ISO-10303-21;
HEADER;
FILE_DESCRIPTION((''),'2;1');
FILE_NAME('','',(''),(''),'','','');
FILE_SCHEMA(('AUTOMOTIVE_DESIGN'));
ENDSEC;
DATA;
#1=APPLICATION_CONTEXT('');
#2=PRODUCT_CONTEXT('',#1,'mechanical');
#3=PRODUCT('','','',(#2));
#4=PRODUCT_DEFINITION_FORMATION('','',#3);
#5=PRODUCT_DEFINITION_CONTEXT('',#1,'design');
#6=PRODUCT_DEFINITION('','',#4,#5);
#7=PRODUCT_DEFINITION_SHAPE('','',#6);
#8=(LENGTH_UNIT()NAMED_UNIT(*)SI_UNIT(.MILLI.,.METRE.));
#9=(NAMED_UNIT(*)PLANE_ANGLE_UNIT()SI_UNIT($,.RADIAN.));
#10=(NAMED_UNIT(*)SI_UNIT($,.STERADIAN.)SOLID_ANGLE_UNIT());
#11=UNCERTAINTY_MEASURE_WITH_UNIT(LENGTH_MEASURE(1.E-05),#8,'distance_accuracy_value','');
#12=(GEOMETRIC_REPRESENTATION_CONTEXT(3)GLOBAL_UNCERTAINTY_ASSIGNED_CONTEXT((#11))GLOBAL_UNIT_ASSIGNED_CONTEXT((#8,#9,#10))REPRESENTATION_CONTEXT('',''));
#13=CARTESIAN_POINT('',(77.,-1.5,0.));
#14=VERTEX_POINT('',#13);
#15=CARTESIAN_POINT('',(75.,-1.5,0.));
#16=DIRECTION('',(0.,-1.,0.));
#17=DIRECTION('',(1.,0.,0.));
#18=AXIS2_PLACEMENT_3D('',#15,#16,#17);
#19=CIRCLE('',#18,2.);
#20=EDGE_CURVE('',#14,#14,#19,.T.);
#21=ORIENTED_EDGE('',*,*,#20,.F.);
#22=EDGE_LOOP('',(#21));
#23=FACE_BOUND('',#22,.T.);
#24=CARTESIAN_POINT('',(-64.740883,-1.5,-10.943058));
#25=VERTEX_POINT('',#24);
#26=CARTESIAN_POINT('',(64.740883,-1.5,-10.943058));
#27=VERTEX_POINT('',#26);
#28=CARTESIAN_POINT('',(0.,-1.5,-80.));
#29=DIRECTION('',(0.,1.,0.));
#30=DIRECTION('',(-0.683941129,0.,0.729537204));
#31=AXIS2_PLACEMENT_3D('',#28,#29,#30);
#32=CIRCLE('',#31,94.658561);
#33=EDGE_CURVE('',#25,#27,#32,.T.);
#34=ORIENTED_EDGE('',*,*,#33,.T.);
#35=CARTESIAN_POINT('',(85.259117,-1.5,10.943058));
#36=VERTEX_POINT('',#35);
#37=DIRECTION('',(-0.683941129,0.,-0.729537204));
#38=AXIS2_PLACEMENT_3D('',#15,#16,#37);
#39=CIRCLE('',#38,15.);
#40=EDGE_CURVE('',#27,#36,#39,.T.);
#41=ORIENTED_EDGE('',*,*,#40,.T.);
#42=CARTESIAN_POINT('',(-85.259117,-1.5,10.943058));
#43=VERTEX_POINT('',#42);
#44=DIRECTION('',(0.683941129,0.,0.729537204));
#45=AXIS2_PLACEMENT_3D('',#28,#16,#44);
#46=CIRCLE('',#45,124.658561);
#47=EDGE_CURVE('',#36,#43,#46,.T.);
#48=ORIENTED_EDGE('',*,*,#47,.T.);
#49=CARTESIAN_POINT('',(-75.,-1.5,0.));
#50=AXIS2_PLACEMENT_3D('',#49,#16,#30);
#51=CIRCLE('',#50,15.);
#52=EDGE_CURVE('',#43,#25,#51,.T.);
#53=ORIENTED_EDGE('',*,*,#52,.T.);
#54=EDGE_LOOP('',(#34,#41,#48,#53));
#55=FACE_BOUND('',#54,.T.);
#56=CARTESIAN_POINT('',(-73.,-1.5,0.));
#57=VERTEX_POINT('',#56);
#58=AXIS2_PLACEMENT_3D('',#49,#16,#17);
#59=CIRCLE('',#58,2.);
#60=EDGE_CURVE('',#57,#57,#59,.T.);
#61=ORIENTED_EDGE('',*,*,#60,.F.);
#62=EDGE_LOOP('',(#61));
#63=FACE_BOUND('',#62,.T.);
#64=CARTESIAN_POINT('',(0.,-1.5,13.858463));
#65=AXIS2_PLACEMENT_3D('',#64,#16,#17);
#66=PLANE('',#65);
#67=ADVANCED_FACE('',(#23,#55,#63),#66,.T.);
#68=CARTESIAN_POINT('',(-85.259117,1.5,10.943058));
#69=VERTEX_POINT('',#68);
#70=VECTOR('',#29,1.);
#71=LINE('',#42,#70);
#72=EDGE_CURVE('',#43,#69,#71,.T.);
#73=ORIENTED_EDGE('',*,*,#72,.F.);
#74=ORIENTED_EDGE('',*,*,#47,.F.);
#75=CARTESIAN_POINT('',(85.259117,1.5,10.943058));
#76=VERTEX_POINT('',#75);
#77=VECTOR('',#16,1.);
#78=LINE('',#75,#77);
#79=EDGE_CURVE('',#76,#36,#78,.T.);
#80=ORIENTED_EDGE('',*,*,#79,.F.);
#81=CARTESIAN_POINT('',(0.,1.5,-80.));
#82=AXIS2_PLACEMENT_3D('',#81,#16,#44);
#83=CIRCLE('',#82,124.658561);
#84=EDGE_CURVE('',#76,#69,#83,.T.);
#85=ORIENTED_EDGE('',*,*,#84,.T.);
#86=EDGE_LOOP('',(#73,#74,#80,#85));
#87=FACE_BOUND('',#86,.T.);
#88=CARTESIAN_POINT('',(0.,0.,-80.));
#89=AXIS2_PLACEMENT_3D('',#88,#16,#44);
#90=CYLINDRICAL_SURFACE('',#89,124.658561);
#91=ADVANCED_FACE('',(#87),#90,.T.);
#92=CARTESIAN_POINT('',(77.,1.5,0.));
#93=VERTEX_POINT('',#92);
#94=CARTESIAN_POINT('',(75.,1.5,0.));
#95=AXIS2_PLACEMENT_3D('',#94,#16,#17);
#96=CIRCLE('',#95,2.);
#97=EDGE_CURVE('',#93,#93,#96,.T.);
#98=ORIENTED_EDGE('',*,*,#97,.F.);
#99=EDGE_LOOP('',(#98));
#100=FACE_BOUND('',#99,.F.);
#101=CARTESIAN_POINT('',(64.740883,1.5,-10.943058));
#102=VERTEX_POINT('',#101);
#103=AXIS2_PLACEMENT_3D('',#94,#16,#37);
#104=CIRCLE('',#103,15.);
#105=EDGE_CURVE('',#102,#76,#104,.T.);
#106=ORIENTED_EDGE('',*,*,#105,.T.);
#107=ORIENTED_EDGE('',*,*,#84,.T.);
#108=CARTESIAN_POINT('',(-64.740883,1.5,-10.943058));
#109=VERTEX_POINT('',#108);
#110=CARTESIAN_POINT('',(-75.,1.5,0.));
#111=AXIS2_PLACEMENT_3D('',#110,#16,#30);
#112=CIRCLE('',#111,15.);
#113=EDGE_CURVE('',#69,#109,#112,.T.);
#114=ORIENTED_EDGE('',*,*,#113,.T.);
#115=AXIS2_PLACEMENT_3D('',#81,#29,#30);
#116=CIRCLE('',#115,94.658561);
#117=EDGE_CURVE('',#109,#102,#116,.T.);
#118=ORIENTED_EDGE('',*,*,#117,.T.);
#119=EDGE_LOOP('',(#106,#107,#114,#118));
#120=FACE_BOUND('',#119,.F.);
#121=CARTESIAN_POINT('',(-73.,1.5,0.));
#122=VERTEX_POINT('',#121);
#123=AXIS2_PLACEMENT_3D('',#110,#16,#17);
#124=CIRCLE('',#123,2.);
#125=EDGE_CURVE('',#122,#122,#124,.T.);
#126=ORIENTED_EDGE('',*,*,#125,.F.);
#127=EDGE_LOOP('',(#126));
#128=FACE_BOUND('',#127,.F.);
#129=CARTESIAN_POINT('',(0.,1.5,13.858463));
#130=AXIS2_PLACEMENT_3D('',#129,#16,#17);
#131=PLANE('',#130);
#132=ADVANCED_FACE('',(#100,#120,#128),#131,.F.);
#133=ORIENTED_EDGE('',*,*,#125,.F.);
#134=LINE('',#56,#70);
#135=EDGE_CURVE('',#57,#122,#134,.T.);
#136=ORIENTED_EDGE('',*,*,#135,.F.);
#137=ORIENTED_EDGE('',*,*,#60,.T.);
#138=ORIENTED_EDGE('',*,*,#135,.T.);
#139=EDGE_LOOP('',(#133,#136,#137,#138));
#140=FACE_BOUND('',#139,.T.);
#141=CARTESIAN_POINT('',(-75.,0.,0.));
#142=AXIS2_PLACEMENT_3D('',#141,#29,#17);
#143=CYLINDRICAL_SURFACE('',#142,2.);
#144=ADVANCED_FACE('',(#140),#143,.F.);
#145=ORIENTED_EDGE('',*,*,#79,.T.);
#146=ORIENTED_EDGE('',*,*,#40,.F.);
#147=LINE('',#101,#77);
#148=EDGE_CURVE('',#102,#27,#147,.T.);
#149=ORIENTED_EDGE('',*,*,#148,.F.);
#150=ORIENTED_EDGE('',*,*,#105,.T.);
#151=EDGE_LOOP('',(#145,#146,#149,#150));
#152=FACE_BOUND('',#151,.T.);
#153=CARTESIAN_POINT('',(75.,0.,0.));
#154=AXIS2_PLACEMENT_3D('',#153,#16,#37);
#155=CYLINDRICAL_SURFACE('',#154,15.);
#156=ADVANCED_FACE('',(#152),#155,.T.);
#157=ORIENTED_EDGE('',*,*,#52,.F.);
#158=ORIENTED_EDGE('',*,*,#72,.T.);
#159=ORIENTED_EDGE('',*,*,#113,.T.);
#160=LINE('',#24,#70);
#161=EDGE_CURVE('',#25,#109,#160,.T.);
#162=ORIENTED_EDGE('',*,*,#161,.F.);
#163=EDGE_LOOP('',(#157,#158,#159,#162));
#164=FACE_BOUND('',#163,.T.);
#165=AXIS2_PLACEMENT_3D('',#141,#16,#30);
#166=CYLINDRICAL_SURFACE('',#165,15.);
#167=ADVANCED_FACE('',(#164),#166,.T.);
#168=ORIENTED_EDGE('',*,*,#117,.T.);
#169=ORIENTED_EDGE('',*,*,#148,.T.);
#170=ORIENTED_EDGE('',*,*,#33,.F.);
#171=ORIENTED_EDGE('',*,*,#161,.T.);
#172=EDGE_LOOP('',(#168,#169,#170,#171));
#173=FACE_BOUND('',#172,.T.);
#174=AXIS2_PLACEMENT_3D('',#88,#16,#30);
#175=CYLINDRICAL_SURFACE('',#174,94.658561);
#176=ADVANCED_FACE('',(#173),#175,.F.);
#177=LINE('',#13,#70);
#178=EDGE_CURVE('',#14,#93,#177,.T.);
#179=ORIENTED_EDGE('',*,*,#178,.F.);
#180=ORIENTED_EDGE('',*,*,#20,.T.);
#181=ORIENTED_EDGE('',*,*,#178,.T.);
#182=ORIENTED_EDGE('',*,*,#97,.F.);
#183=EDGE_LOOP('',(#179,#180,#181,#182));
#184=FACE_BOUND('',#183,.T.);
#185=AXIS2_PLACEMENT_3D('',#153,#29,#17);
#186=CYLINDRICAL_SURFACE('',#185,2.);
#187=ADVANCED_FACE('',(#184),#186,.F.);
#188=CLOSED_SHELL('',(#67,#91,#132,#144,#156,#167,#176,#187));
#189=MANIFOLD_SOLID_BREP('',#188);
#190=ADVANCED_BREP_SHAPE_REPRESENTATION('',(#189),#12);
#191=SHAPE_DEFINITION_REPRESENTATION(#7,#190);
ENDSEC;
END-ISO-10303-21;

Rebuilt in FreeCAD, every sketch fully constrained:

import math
import FreeCAD as App
import Part
import Sketcher
Q = App.Units.Quantity

doc = App.newDocument("Part")
body = doc.addObject("PartDesign::Body", "Body")

sketch1 = body.newObject("Sketcher::SketchObject", "Sketch")
sketch1.AttachmentSupport = (doc.getObject("XZ_Plane"), [""])
sketch1.MapMode = "FlatFace"
sketch1.addGeometry(Part.ArcOfCircle(Part.Circle(App.Vector(0, -80, 0), App.Vector(0, 0, 1), 94.658561), math.radians(46.84761), math.radians(133.15239)), False)
sketch1.addGeometry(Part.ArcOfCircle(Part.Circle(App.Vector(75, 0, 0), App.Vector(0, 0, 1), 15), math.radians(-133.15239), math.radians(46.84761)), False)
sketch1.addGeometry(Part.ArcOfCircle(Part.Circle(App.Vector(0, -80, 0), App.Vector(0, 0, 1), 124.658561), math.radians(46.84761), math.radians(133.15239)), False)
sketch1.addGeometry(Part.ArcOfCircle(Part.Circle(App.Vector(-75, 0, 0), App.Vector(0, 0, 1), 15), math.radians(133.15239), math.radians(313.15239)), False)
sketch1.addGeometry(Part.Circle(App.Vector(-75, 0, 0), App.Vector(0, 0, 1), 2), False)
sketch1.addGeometry(Part.Circle(App.Vector(75, 0, 0), App.Vector(0, 0, 1), 2), False)
sketch1.addConstraint(Sketcher.Constraint("Tangent", 0, 1, 1, 1))
sketch1.addConstraint(Sketcher.Constraint("Tangent", 1, 2, 2, 1))
sketch1.addConstraint(Sketcher.Constraint("Tangent", 2, 2, 3, 1))
sketch1.addConstraint(Sketcher.Constraint("Tangent", 3, 2, 0, 2))
sketch1.addConstraint(Sketcher.Constraint("Coincident", 2, 3, 0, 3))
sketch1.addConstraint(Sketcher.Constraint("Coincident", 4, 3, 3, 3))
sketch1.addConstraint(Sketcher.Constraint("Coincident", 5, 3, 1, 3))
sketch1.addConstraint(Sketcher.Constraint("Equal", 4, 5))
sketch1.addConstraint(Sketcher.Constraint("Symmetric", 1, 3, 3, 3, -1, 1))
sketch1.addConstraint(Sketcher.Constraint("PointOnObject", 0, 3, -2))
sketch1.addConstraint(Sketcher.Constraint("Diameter", 4, Q("4 mm")))
sketch1.addConstraint(Sketcher.Constraint("Radius", 1, Q("15 mm")))
sketch1.addConstraint(Sketcher.Constraint("DistanceY", 0, 3, -1, 1, Q("80 mm")))
sketch1.addConstraint(Sketcher.Constraint("DistanceX", -1, 1, 1, 3, Q("75 mm")))
pad1 = body.newObject("PartDesign::Pad", "Pad")
pad1.Profile = sketch1
pad1.Length = 3
pad1.Midplane = True

doc.recompute()
